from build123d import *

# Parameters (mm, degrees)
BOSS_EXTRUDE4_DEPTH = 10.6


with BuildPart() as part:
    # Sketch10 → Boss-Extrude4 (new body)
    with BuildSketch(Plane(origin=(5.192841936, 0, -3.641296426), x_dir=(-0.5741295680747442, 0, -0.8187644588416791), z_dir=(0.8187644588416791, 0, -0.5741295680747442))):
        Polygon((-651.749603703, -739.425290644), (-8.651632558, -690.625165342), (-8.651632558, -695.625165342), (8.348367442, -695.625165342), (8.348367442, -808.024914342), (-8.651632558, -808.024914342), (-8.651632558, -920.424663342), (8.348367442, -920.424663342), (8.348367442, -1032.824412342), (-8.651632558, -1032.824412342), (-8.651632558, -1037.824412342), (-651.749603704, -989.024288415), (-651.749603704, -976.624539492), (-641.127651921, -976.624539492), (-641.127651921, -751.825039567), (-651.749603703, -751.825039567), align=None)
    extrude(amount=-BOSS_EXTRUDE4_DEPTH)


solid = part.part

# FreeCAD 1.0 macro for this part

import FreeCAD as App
import Part
import Sketcher
Q = App.Units.Quantity


def add_polygon(sketch, points):
    """Adds a closed chain of lines whose ends are joined by coincident constraints."""
    first, n = sketch.GeometryCount, len(points)
    for a, b in zip(points, points[1:] + points[:1]):
        sketch.addGeometry(Part.LineSegment(App.Vector(*a, 0), App.Vector(*b, 0)), False)
    for i in range(n):
        sketch.addConstraint(Sketcher.Constraint("Coincident", first + i, 2, first + (i + 1) % n, 1))

doc = App.newDocument("Part")
body = doc.addObject("PartDesign::Body", "Body")

sketch1 = body.newObject("Sketcher::SketchObject", "Sketch")
sketch1.Placement = App.Placement(App.Vector(5.192842, 0, -3.641296), App.Rotation(App.Vector(-0.574129568, 0, -0.818764459), App.Vector(0, 1, 0), App.Vector(0.818764459, 0, -0.574129568), "ZXY"))
add_polygon(sketch1, [(-9, -691), (-652, -739), (-652, -752), (-641, -752), (-641, -977), (-652, -977), (-652, -989), (-9, -1038), (-9, -1033), (8, -1033), (8, -920), (-9, -920), (-9, -808), (8, -808), (8, -696), (-9, -696)])
sketch1.addConstraint([
    Sketcher.Constraint("Vertical", 1),
    Sketcher.Constraint("Horizontal", 2),
    Sketcher.Constraint("Vertical", 3),
    Sketcher.Constraint("Horizontal", 4),
    Sketcher.Constraint("Vertical", 5),
    Sketcher.Constraint("Vertical", 7),
    Sketcher.Constraint("Horizontal", 8),
    Sketcher.Constraint("Vertical", 9),
    Sketcher.Constraint("Horizontal", 10),
    Sketcher.Constraint("Vertical", 11),
    Sketcher.Constraint("Horizontal", 12),
    Sketcher.Constraint("Vertical", 13),
    Sketcher.Constraint("Horizontal", 14),
    Sketcher.Constraint("Vertical", 15),
    Sketcher.Constraint("Vertical", 1, 2, 4, 2),
    Sketcher.Constraint("Vertical", 7, 2, 10, 2),
    Sketcher.Constraint("Vertical", 9, 2, 12, 2),
    Sketcher.Constraint("Vertical", 11, 2, 14, 2),
    Sketcher.Constraint("Equal", 1, 5),
    Sketcher.Constraint("Equal", 9, 11),
    Sketcher.Constraint("Equal", 11, 13),
    Sketcher.Constraint("Equal", 7, 15),
    Sketcher.Constraint("Equal", 0, 6),
    Sketcher.Constraint("DistanceX", 8, 1, 8, 2, Q("17 mm")),
    Sketcher.Constraint("DistanceY", 7, 1, 7, 2, Q("5 mm")),
    Sketcher.Constraint("DistanceY", 3, 2, 3, 1, Q("224.7995 mm")),
    Sketcher.Constraint("DistanceX", 2, 1, 2, 2, Q("10.621952 mm")),
    Sketcher.Constraint("DistanceY", 1, 2, 1, 1, Q("12.399749 mm")),
    Sketcher.Constraint("DistanceY", 9, 1, 9, 2, Q("112.399749 mm")),
    Sketcher.Constraint("Distance", 0, Q("644.94686 mm")),
    Sketcher.Constraint("DistanceY", 0, 2, -1, 1, Q("739.425291 mm")),
    Sketcher.Constraint("DistanceX", 0, 2, -1, 1, Q("651.749604 mm")),
])
pad1 = body.newObject("PartDesign::Pad", "Pad")
pad1.Profile = sketch1
pad1.Length = 10.6
pad1.Reversed = True

doc.recompute()
